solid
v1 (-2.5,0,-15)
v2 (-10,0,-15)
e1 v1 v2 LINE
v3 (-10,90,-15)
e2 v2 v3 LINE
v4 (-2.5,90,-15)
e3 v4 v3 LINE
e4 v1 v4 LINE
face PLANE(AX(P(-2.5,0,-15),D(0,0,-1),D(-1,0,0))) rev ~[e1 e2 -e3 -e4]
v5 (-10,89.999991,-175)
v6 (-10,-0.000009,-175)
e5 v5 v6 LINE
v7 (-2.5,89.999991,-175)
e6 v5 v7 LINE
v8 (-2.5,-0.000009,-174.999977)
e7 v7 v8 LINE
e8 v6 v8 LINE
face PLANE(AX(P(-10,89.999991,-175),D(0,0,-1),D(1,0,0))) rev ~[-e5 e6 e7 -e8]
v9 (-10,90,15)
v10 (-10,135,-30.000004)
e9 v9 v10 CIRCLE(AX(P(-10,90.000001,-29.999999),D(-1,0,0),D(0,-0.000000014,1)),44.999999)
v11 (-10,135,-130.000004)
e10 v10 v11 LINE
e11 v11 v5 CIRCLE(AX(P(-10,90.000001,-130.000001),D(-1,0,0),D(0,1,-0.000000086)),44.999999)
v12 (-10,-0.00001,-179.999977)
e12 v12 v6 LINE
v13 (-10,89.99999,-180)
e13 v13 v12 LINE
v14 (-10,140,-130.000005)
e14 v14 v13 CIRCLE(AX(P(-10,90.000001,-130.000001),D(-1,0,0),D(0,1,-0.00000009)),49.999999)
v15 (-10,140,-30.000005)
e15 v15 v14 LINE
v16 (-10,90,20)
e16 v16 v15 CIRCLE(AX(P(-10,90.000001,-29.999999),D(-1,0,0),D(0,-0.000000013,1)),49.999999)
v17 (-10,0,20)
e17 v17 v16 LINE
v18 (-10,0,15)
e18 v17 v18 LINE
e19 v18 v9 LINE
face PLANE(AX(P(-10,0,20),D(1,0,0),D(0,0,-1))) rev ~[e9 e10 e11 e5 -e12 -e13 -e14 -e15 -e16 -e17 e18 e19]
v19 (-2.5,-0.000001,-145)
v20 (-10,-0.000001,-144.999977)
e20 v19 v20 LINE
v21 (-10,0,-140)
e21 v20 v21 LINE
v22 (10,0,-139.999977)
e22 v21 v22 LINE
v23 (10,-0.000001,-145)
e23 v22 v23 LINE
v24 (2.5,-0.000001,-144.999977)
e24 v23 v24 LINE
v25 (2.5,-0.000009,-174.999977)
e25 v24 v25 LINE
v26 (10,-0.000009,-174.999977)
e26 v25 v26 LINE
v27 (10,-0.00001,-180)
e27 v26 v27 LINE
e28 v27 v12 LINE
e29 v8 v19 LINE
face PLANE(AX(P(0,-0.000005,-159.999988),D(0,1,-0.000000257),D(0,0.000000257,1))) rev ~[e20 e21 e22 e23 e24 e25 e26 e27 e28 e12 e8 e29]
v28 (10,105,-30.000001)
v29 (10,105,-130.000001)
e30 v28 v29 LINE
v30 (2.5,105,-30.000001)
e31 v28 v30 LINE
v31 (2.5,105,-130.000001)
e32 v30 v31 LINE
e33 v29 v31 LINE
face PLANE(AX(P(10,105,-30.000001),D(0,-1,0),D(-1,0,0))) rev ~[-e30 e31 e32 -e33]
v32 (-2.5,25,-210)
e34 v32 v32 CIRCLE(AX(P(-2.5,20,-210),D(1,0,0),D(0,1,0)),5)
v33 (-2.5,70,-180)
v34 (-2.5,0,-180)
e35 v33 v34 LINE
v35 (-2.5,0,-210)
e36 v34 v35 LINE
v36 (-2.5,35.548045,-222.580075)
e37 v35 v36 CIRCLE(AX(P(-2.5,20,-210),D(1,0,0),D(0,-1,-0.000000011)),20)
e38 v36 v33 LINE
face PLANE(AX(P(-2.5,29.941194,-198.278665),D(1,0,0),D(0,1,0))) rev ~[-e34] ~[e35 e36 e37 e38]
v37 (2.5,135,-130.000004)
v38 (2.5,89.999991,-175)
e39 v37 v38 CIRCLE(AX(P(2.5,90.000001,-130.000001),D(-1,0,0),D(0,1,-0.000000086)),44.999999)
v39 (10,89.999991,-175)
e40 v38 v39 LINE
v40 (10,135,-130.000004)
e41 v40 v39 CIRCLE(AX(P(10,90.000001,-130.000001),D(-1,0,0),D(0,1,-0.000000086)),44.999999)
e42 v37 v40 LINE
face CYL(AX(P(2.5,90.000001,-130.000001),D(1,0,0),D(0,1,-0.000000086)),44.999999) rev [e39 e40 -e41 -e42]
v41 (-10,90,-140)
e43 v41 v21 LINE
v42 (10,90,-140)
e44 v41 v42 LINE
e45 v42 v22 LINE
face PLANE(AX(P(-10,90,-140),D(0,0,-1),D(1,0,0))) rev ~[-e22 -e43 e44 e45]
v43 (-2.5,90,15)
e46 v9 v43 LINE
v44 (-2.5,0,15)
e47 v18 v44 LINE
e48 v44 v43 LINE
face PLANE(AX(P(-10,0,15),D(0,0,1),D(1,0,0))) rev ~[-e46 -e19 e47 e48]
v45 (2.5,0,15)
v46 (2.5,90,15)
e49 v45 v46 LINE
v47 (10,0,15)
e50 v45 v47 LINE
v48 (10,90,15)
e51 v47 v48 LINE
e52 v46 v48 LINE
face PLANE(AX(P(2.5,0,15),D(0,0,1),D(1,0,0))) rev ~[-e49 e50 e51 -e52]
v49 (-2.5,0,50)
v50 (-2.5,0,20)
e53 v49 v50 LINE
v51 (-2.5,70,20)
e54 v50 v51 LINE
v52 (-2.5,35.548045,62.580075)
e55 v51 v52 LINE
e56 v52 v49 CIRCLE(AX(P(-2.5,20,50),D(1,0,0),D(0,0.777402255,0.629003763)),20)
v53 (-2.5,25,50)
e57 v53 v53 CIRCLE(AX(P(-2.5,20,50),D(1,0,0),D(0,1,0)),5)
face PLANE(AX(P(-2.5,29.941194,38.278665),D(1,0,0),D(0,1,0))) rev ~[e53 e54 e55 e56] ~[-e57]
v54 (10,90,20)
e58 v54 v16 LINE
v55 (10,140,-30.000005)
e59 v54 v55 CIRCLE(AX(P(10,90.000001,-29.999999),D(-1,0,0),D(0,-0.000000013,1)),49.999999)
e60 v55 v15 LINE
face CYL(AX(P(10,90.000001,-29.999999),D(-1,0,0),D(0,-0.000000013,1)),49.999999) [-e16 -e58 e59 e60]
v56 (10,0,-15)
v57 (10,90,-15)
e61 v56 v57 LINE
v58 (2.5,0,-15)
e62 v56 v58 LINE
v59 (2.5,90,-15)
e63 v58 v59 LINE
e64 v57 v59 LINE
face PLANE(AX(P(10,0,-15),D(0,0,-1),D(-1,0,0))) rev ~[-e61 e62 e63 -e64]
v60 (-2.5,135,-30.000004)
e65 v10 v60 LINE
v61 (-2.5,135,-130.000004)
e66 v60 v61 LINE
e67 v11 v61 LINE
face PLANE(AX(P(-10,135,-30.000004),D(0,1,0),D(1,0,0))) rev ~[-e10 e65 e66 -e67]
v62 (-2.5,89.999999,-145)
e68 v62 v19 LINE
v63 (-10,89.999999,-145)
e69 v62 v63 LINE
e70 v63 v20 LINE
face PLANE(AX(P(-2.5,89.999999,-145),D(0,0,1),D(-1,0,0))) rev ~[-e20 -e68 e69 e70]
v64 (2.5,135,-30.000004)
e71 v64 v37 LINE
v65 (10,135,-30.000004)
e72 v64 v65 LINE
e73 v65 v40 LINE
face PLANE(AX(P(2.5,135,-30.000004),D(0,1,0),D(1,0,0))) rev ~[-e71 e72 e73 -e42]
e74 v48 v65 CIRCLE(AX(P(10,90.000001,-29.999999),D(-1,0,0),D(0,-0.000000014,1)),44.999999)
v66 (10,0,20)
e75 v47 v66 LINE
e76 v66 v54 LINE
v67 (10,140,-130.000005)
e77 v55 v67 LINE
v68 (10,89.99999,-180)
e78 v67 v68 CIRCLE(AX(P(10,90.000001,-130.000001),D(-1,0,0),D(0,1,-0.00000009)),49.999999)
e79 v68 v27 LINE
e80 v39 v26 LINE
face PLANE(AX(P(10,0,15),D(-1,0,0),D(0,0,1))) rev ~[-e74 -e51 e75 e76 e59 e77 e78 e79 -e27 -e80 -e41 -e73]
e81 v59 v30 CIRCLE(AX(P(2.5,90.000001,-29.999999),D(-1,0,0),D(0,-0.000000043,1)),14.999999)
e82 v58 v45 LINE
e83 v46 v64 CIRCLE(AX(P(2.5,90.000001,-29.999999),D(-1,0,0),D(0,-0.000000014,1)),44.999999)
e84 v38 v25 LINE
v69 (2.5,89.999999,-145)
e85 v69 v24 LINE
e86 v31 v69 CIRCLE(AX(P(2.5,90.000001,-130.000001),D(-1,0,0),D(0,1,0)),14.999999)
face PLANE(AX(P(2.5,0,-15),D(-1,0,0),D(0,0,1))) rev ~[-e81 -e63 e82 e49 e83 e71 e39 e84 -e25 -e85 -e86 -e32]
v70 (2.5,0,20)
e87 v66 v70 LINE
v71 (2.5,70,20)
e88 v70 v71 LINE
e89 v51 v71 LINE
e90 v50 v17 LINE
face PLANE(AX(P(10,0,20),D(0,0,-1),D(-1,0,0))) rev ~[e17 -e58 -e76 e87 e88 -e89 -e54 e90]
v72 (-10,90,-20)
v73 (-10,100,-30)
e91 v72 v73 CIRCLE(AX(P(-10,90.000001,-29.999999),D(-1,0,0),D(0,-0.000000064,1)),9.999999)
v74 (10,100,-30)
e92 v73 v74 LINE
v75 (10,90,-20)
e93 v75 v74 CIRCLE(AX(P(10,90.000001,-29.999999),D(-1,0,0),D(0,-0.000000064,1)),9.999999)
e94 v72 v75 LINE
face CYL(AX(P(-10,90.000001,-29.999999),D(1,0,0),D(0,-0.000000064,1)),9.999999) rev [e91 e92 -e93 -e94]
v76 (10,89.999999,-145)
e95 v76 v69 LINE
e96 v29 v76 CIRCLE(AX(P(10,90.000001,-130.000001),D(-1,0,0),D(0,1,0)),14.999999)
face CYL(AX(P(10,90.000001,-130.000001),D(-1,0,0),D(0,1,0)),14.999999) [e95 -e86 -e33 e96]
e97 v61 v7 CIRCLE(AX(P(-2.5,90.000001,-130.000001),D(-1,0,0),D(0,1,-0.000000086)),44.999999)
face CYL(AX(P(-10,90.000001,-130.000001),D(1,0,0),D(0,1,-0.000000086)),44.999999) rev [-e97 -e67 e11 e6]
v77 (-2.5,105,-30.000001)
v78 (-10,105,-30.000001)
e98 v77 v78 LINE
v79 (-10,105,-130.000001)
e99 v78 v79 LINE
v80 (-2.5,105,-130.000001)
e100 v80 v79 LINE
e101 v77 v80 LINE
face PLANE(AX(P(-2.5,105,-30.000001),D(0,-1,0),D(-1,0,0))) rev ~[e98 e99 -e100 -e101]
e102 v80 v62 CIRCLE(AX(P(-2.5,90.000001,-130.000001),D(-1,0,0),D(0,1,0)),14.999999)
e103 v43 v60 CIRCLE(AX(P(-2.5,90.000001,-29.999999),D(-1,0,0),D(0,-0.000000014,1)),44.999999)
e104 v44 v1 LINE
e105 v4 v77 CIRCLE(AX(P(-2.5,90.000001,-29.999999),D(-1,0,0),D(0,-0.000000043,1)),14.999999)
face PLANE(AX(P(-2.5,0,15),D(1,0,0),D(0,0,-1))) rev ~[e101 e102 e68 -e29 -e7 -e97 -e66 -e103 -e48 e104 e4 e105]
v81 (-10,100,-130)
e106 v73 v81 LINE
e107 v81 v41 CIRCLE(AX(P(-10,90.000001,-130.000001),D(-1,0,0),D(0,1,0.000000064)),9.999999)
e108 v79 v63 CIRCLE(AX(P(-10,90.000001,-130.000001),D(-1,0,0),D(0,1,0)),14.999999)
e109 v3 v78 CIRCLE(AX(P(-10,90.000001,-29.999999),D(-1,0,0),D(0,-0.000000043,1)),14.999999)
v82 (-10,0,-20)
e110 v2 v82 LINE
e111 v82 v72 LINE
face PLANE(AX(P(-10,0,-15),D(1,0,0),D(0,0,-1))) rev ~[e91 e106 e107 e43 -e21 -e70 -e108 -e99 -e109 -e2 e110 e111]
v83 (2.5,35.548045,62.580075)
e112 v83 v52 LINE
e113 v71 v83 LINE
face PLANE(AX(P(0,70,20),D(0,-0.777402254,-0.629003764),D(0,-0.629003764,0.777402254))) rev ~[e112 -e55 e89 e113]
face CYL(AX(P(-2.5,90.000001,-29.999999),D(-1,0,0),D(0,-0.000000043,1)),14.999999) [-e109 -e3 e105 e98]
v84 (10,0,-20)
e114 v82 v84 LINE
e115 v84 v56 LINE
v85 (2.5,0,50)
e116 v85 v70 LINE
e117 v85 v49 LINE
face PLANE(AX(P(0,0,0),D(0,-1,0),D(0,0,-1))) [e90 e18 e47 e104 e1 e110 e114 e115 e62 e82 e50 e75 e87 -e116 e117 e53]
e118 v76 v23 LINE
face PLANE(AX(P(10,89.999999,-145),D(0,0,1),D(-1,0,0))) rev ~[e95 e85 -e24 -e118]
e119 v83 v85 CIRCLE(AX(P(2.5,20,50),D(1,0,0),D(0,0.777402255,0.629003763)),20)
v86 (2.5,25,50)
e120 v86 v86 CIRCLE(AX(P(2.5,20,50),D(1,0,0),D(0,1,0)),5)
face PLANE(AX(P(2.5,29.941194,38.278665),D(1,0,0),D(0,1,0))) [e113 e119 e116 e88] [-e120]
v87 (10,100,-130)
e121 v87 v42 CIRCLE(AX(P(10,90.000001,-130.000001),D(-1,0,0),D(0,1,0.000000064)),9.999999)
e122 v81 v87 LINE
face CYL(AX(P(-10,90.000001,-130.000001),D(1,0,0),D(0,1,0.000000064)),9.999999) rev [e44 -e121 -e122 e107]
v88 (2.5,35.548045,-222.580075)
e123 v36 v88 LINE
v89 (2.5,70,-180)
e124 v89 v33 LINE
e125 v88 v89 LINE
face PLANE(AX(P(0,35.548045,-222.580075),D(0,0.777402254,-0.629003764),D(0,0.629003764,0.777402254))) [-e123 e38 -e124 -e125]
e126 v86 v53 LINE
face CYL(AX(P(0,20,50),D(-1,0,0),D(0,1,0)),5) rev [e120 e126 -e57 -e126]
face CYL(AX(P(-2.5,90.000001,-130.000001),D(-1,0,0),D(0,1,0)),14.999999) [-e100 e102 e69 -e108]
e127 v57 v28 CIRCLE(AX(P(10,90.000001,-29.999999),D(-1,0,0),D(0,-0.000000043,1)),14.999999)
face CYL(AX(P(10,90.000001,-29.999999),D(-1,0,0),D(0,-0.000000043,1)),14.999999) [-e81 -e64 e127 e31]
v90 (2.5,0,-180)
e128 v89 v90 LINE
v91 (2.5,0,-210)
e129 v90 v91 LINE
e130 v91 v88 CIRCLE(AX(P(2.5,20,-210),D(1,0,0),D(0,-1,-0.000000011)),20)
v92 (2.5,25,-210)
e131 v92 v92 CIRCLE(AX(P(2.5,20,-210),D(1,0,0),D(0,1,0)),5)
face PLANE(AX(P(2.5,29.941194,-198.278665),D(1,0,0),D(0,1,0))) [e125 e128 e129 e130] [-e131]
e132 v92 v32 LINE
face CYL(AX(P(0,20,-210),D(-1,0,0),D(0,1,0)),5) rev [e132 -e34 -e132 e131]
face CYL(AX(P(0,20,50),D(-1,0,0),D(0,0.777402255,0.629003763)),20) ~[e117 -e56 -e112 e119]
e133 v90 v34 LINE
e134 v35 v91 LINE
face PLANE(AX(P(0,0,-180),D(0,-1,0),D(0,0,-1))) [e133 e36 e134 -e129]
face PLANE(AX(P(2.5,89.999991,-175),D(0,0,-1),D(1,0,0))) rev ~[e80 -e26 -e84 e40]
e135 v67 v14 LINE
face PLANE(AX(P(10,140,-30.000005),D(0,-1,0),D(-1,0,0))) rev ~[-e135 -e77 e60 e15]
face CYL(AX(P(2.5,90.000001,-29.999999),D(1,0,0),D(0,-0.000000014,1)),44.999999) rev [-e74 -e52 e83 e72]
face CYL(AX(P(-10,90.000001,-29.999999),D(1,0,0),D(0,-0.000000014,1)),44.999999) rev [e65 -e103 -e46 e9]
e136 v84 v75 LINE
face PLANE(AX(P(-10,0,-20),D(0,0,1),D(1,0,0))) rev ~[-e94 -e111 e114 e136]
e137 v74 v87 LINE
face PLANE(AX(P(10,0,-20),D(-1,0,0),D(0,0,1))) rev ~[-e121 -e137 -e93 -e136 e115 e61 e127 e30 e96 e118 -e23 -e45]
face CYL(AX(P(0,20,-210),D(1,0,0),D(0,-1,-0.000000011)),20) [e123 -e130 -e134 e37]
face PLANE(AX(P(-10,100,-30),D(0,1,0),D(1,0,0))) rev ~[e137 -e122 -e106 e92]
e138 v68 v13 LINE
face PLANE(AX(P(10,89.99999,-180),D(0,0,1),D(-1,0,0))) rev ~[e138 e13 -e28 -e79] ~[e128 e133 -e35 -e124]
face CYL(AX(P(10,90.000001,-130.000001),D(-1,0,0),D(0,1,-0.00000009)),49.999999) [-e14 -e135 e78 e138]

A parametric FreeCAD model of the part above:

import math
import FreeCAD as App
import Part
import Sketcher
from FreeCAD import Vector

doc = App.newDocument("Part")
body = doc.addObject("PartDesign::Body", "Body")

sketch1 = body.newObject("Sketcher::SketchObject", "Sketch")
sketch1.AttachmentSupport = (doc.getObject("XZ_Plane"), [""])
sketch1.MapMode = "FlatFace"
sketch1.addGeometry([
    Part.LineSegment(Vector(2, 15, 0), Vector(10, 15, 0)),
    Part.LineSegment(Vector(10, 15, 0), Vector(10, 20, 0)),
    Part.LineSegment(Vector(10, 20, 0), Vector(-10, 20, 0)),
    Part.LineSegment(Vector(-10, 20, 0), Vector(-10, 15, 0)),
    Part.LineSegment(Vector(-10, 15, 0), Vector(-2, 15, 0)),
    Part.LineSegment(Vector(-2, 15, 0), Vector(-2, -15, 0)),
    Part.LineSegment(Vector(-2, -15, 0), Vector(-10, -15, 0)),
    Part.LineSegment(Vector(-10, -15, 0), Vector(-10, -20, 0)),
    Part.LineSegment(Vector(-10, -20, 0), Vector(10, -20, 0)),
    Part.LineSegment(Vector(10, -20, 0), Vector(10, -15, 0)),
    Part.LineSegment(Vector(10, -15, 0), Vector(2, -15, 0)),
    Part.LineSegment(Vector(2, -15, 0), Vector(2, 15, 0)),
], False)
sketch1.addConstraint([
    Sketcher.Constraint("Coincident", 0, 2, 1, 1),
    Sketcher.Constraint("Coincident", 1, 2, 2, 1),
    Sketcher.Constraint("Coincident", 2, 2, 3, 1),
    Sketcher.Constraint("Coincident", 3, 2, 4, 1),
    Sketcher.Constraint("Coincident", 4, 2, 5, 1),
    Sketcher.Constraint("Coincident", 5, 2, 6, 1),
    Sketcher.Constraint("Coincident", 6, 2, 7, 1),
    Sketcher.Constraint("Coincident", 7, 2, 8, 1),
    Sketcher.Constraint("Coincident", 8, 2, 9, 1),
    Sketcher.Constraint("Coincident", 9, 2, 10, 1),
    Sketcher.Constraint("Coincident", 10, 2, 11, 1),
    Sketcher.Constraint("Coincident", 11, 2, 0, 1),
    Sketcher.Constraint("Horizontal", 0),
    Sketcher.Constraint("Vertical", 1),
    Sketcher.Constraint("Horizontal", 2),
    Sketcher.Constraint("Vertical", 3),
    Sketcher.Constraint("Horizontal", 4),
    Sketcher.Constraint("Vertical", 5),
    Sketcher.Constraint("Horizontal", 6),
    Sketcher.Constraint("Vertical", 7),
    Sketcher.Constraint("Horizontal", 8),
    Sketcher.Constraint("Vertical", 9),
    Sketcher.Constraint("Horizontal", 10),
    Sketcher.Constraint("Vertical", 11),
    Sketcher.Constraint("Symmetric", 0, 2, 6, 2, -1, 1),
    Sketcher.Constraint("Symmetric", 2, 2, 8, 2, -1, 1),
    Sketcher.Constraint("Symmetric", 4, 2, 10, 2, -1, 1),
    Sketcher.Constraint("Symmetric", 0, 2, 3, 2, -2),
    Sketcher.Constraint("DistanceX", 2, 2, 2, 1, 20.0),
    Sketcher.Constraint("DistanceY", 1, 1, 1, 2, 5.0),
    Sketcher.Constraint("DistanceY", 5, 2, 5, 1, 30.0),
    Sketcher.Constraint("DistanceX", 0, 1, 0, 2, 7.5),
])

sketch2 = body.newObject("Sketcher::SketchObject", "Sketch001")
sketch2.AttachmentSupport = (doc.getObject("YZ_Plane"), [""])
sketch2.MapMode = "FlatFace"
sketch2.addGeometry([
    Part.LineSegment(Vector(0, -20, 0), Vector(90, -20, 0)),
    Part.ArcOfCircle(Part.Circle(Vector(90, -30, 0), Vector(0, 0, 1), 10), math.radians(0), math.radians(90)),
    Part.LineSegment(Vector(100, -30, 0), Vector(100, -130, 0)),
    Part.ArcOfCircle(Part.Circle(Vector(90, -130, 0), Vector(0, 0, 1), 10), math.radians(-90), math.radians(0)),
    Part.LineSegment(Vector(90, -140, 0), Vector(0, -140, 0)),
], False)
sketch2.addConstraint([
    Sketcher.Constraint("Tangent", 0, 2, 1, 2),
    Sketcher.Constraint("Tangent", 1, 1, 2, 1),
    Sketcher.Constraint("Tangent", 2, 2, 3, 2),
    Sketcher.Constraint("Tangent", 3, 1, 4, 1),
    Sketcher.Constraint("Horizontal", 0),
    Sketcher.Constraint("Vertical", 2),
    Sketcher.Constraint("Horizontal", 4),
    Sketcher.Constraint("Equal", 1, 3),
    Sketcher.Constraint("PointOnObject", 0, 1, -2),
    Sketcher.Constraint("PointOnObject", 4, 2, -2),
    Sketcher.Constraint("Radius", 1, 9.999999),
    Sketcher.Constraint("DistanceX", 0, 1, 0, 2, 90.0),
    Sketcher.Constraint("DistanceY", 2, 2, 2, 1, 100.0),
    Sketcher.Constraint("DistanceY", 1, 3, -1, 1, 29.999999),
])
doc.recompute()

additivepipe = body.newObject("PartDesign::AdditivePipe", "AdditivePipe")
additivepipe.Profile = sketch1
additivepipe.Spine = (sketch2, ["Edge1", "Edge2", "Edge3", "Edge4", "Edge5"])

sketch3 = body.newObject("Sketcher::SketchObject", "Sketch002")
sketch3.AttachmentSupport = (doc.getObject("YZ_Plane"), [""])
sketch3.MapMode = "FlatFace"
sketch3.addGeometry([
    Part.LineSegment(Vector(0, 50, 0), Vector(0, 20, 0)),
    Part.LineSegment(Vector(0, 20, 0), Vector(70, 20, 0)),
    Part.LineSegment(Vector(70, 20, 0), Vector(36, 63, 0)),
    Part.ArcOfCircle(Part.Circle(Vector(20, 50, 0), Vector(0, 0, 1), 20), math.radians(39), math.radians(180)),
    Part.Circle(Vector(20, 50, 0), Vector(0, 0, 1), 5),
    Part.LineSegment(Vector(0, -180, 0), Vector(0, -210, 0)),
    Part.ArcOfCircle(Part.Circle(Vector(20, -210, 0), Vector(0, 0, 1), 20), math.radians(-180), math.radians(-39)),
    Part.LineSegment(Vector(36, -223, 0), Vector(70, -180, 0)),
    Part.LineSegment(Vector(70, -180, 0), Vector(0, -180, 0)),
    Part.Circle(Vector(20, -210, 0), Vector(0, 0, 1), 5),
], False)
sketch3.addConstraint([
    Sketcher.Constraint("Coincident", 0, 2, 1, 1),
    Sketcher.Constraint("Coincident", 1, 2, 2, 1),
    Sketcher.Constraint("Tangent", 2, 2, 3, 1),
    Sketcher.Constraint("Tangent", 3, 2, 0, 1),
    Sketcher.Constraint("Tangent", 5, 2, 6, 1),
    Sketcher.Constraint("Tangent", 6, 2, 7, 1),
    Sketcher.Constraint("Coincident", 7, 2, 8, 1),
    Sketcher.Constraint("Coincident", 8, 2, 5, 1),
    Sketcher.Constraint("Vertical", 0),
    Sketcher.Constraint("Horizontal", 1),
    Sketcher.Constraint("Vertical", 5),
    Sketcher.Constraint("Horizontal", 8),
    Sketcher.Constraint("Coincident", 4, 3, 3, 3),
    Sketcher.Constraint("Coincident", 9, 3, 6, 3),
    Sketcher.Constraint("Equal", 3, 6),
    Sketcher.Constraint("Equal", 4, 9),
    Sketcher.Constraint("PointOnObject", 0, 2, -2),
    Sketcher.Constraint("PointOnObject", 5, 2, -2),
    Sketcher.Constraint("Vertical", 2, 2, 6, 2),
    Sketcher.Constraint("Vertical", 1, 2, 7, 2),
    Sketcher.Constraint("Diameter", 4, 10.0),
    Sketcher.Constraint("Radius", 3, 20.0),
    Sketcher.Constraint("DistanceX", 1, 1, 1, 2, 70.0),
    Sketcher.Constraint("DistanceY", 0, 2, 0, 1, 30.0),
    Sketcher.Constraint("DistanceY", -1, 1, 3, 3, 50.0),
    Sketcher.Constraint("DistanceY", 6, 3, -1, 1, 210.0),
])
pad1 = body.newObject("PartDesign::Pad", "Pad")
pad1.Profile = sketch3
pad1.Length = 5
pad1.Midplane = True

doc.recompute()
